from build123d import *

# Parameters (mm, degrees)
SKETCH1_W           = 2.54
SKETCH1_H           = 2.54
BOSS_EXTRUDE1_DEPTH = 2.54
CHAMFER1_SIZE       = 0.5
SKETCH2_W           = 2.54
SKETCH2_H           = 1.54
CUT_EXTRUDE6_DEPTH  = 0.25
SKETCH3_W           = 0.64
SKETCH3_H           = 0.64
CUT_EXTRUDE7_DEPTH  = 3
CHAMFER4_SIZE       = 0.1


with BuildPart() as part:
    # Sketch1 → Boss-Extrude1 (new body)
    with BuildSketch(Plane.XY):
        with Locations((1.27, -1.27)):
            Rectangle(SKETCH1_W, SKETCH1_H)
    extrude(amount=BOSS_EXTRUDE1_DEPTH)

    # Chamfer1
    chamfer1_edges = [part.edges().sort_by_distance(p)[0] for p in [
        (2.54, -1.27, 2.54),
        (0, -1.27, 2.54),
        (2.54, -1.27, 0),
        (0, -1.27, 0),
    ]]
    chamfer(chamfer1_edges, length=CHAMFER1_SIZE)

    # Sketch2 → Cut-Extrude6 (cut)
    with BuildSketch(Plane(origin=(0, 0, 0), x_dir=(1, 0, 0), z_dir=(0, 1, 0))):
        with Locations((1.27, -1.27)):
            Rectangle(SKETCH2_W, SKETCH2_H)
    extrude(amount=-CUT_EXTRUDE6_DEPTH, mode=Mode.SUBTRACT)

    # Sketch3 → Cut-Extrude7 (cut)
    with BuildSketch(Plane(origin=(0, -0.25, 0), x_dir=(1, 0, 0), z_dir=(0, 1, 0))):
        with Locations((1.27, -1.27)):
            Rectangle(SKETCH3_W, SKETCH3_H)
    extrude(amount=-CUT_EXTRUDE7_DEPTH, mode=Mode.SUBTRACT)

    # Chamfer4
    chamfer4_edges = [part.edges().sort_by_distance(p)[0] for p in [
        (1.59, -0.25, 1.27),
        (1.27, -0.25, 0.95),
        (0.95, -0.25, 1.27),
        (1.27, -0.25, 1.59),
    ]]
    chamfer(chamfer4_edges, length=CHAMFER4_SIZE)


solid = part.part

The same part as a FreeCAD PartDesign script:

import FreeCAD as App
import Part
import Sketcher

V = App.Vector


def edges_at(feature, points):
    """Names of the edges that pass closest to the given points."""
    edges = feature.Shape.Edges
    near = lambda p: min(range(len(edges)), key=lambda i: edges[i].distToShape(Part.Vertex(*p))[0])
    return sorted({f"Edge{near(p) + 1}" for p in points})


def add_polygon(sketch, points):
    """Adds a closed chain of lines whose ends are joined by coincident constraints."""
    first, n = sketch.GeometryCount, len(points)
    for a, b in zip(points, points[1:] + points[:1]):
        sketch.addGeometry(Part.LineSegment(App.Vector(*a, 0), App.Vector(*b, 0)), False)
    for i in range(n):
        sketch.addConstraint(Sketcher.Constraint("Coincident", first + i, 2, first + (i + 1) % n, 1))

doc = App.newDocument("Part")
body = doc.addObject("PartDesign::Body", "Body")

# Sketch on XY plane
sketch1 = doc.addObject("Sketcher::SketchObject", "Sketch")
body.addObject(sketch1)
sketch1.AttachmentSupport = (doc.XY_Plane, [""])
sketch1.MapMode = "FlatFace"
add_polygon(sketch1, [(0, 0), (0, -2.5), (2.5, -2.5), (2.5, 0)])  # lines 0-3
sketch1.addConstraint(Sketcher.Constraint("Vertical", 0))
sketch1.addConstraint(Sketcher.Constraint("Horizontal", 1))
sketch1.addConstraint(Sketcher.Constraint("Vertical", 2))
sketch1.addConstraint(Sketcher.Constraint("Horizontal", 3))
sketch1.addConstraint(Sketcher.Constraint("Coincident", 3, 2, -1, 1))
sketch1.addConstraint(Sketcher.Constraint("Equal", 3, 0))
sketch1.addConstraint(Sketcher.Constraint("DistanceX", 1, 1, 1, 2, 2.54))
pad1 = doc.addObject("PartDesign::Pad", "Pad")
body.addObject(pad1)
pad1.Profile = sketch1
pad1.Length = 2.54
doc.recompute()

chamfer = doc.addObject("PartDesign::Chamfer", "Chamfer")
body.addObject(chamfer)
chamfer.Base = (pad1, edges_at(pad1, [
    (2.54, -1.27, 2.54),
    (0, -1.27, 2.54),
    (2.54, -1.27, 0),
    (0, -1.27, 0),
]))
chamfer.Size = 0.5

# Sketch on XZ plane
sketch2 = doc.addObject("Sketcher::SketchObject", "Sketch001")
body.addObject(sketch2)
sketch2.AttachmentSupport = (doc.XZ_Plane, [""])
sketch2.MapMode = "FlatFace"
add_polygon(sketch2, [(0, 0.5), (0, 2), (2.5, 2), (2.5, 0.5)])  # lines 0-3
sketch2.addConstraint(Sketcher.Constraint("Vertical", 0))
sketch2.addConstraint(Sketcher.Constraint("Horizontal", 1))
sketch2.addConstraint(Sketcher.Constraint("Vertical", 2))
sketch2.addConstraint(Sketcher.Constraint("Horizontal", 3))
sketch2.addConstraint(Sketcher.Constraint("PointOnObject", 0, 2, -2))
sketch2.addConstraint(Sketcher.Constraint("DistanceX", 1, 1, 1, 2, 2.54))
sketch2.addConstraint(Sketcher.Constraint("DistanceY", 0, 1, 0, 2, 1.54))
sketch2.addConstraint(Sketcher.Constraint("DistanceY", -1, 1, 2, 2, 0.5))
pocket1 = doc.addObject("PartDesign::Pocket", "Pocket")
body.addObject(pocket1)
pocket1.Profile = sketch2
pocket1.Length = 0.25
pocket1.Reversed = True

# Sketch on XZ plane
sketch3 = doc.addObject("Sketcher::SketchObject", "Sketch002")
body.addObject(sketch3)
sketch3.AttachmentSupport = (doc.XZ_Plane, [""])
sketch3.MapMode = "FlatFace"
sketch3.AttachmentOffset = App.Placement(V(0, 0, 0.25), App.Rotation())
add_polygon(sketch3, [(0.9, 0.9), (0.9, 1.6), (1.6, 1.6), (1.6, 0.9)])  # lines 0-3
sketch3.addConstraint(Sketcher.Constraint("Vertical", 0))
sketch3.addConstraint(Sketcher.Constraint("Horizontal", 1))
sketch3.addConstraint(Sketcher.Constraint("Vertical", 2))
sketch3.addConstraint(Sketcher.Constraint("Horizontal", 3))
sketch3.addConstraint(Sketcher.Constraint("Equal", 3, 0))
sketch3.addConstraint(Sketcher.Constraint("DistanceX", 1, 1, 1, 2, 0.64))
sketch3.addConstraint(Sketcher.Constraint("DistanceX", -1, 1, 0, 2, 0.95))
sketch3.addConstraint(Sketcher.Constraint("DistanceY", -1, 1, 0, 2, 1.59))
pocket2 = doc.addObject("PartDesign::Pocket", "Pocket001")
body.addObject(pocket2)
pocket2.Profile = sketch3
pocket2.Length = 3
pocket2.Reversed = True
doc.recompute()

chamfer2 = doc.addObject("PartDesign::Chamfer", "Chamfer001")
body.addObject(chamfer2)
chamfer2.Base = (pocket2, edges_at(pocket2, [
    (1.59, -0.25, 1.27),
    (1.27, -0.25, 0.95),
    (0.95, -0.25, 1.27),
    (1.27, -0.25, 1.59),
]))
chamfer2.Size = 0.1

doc.recompute()
